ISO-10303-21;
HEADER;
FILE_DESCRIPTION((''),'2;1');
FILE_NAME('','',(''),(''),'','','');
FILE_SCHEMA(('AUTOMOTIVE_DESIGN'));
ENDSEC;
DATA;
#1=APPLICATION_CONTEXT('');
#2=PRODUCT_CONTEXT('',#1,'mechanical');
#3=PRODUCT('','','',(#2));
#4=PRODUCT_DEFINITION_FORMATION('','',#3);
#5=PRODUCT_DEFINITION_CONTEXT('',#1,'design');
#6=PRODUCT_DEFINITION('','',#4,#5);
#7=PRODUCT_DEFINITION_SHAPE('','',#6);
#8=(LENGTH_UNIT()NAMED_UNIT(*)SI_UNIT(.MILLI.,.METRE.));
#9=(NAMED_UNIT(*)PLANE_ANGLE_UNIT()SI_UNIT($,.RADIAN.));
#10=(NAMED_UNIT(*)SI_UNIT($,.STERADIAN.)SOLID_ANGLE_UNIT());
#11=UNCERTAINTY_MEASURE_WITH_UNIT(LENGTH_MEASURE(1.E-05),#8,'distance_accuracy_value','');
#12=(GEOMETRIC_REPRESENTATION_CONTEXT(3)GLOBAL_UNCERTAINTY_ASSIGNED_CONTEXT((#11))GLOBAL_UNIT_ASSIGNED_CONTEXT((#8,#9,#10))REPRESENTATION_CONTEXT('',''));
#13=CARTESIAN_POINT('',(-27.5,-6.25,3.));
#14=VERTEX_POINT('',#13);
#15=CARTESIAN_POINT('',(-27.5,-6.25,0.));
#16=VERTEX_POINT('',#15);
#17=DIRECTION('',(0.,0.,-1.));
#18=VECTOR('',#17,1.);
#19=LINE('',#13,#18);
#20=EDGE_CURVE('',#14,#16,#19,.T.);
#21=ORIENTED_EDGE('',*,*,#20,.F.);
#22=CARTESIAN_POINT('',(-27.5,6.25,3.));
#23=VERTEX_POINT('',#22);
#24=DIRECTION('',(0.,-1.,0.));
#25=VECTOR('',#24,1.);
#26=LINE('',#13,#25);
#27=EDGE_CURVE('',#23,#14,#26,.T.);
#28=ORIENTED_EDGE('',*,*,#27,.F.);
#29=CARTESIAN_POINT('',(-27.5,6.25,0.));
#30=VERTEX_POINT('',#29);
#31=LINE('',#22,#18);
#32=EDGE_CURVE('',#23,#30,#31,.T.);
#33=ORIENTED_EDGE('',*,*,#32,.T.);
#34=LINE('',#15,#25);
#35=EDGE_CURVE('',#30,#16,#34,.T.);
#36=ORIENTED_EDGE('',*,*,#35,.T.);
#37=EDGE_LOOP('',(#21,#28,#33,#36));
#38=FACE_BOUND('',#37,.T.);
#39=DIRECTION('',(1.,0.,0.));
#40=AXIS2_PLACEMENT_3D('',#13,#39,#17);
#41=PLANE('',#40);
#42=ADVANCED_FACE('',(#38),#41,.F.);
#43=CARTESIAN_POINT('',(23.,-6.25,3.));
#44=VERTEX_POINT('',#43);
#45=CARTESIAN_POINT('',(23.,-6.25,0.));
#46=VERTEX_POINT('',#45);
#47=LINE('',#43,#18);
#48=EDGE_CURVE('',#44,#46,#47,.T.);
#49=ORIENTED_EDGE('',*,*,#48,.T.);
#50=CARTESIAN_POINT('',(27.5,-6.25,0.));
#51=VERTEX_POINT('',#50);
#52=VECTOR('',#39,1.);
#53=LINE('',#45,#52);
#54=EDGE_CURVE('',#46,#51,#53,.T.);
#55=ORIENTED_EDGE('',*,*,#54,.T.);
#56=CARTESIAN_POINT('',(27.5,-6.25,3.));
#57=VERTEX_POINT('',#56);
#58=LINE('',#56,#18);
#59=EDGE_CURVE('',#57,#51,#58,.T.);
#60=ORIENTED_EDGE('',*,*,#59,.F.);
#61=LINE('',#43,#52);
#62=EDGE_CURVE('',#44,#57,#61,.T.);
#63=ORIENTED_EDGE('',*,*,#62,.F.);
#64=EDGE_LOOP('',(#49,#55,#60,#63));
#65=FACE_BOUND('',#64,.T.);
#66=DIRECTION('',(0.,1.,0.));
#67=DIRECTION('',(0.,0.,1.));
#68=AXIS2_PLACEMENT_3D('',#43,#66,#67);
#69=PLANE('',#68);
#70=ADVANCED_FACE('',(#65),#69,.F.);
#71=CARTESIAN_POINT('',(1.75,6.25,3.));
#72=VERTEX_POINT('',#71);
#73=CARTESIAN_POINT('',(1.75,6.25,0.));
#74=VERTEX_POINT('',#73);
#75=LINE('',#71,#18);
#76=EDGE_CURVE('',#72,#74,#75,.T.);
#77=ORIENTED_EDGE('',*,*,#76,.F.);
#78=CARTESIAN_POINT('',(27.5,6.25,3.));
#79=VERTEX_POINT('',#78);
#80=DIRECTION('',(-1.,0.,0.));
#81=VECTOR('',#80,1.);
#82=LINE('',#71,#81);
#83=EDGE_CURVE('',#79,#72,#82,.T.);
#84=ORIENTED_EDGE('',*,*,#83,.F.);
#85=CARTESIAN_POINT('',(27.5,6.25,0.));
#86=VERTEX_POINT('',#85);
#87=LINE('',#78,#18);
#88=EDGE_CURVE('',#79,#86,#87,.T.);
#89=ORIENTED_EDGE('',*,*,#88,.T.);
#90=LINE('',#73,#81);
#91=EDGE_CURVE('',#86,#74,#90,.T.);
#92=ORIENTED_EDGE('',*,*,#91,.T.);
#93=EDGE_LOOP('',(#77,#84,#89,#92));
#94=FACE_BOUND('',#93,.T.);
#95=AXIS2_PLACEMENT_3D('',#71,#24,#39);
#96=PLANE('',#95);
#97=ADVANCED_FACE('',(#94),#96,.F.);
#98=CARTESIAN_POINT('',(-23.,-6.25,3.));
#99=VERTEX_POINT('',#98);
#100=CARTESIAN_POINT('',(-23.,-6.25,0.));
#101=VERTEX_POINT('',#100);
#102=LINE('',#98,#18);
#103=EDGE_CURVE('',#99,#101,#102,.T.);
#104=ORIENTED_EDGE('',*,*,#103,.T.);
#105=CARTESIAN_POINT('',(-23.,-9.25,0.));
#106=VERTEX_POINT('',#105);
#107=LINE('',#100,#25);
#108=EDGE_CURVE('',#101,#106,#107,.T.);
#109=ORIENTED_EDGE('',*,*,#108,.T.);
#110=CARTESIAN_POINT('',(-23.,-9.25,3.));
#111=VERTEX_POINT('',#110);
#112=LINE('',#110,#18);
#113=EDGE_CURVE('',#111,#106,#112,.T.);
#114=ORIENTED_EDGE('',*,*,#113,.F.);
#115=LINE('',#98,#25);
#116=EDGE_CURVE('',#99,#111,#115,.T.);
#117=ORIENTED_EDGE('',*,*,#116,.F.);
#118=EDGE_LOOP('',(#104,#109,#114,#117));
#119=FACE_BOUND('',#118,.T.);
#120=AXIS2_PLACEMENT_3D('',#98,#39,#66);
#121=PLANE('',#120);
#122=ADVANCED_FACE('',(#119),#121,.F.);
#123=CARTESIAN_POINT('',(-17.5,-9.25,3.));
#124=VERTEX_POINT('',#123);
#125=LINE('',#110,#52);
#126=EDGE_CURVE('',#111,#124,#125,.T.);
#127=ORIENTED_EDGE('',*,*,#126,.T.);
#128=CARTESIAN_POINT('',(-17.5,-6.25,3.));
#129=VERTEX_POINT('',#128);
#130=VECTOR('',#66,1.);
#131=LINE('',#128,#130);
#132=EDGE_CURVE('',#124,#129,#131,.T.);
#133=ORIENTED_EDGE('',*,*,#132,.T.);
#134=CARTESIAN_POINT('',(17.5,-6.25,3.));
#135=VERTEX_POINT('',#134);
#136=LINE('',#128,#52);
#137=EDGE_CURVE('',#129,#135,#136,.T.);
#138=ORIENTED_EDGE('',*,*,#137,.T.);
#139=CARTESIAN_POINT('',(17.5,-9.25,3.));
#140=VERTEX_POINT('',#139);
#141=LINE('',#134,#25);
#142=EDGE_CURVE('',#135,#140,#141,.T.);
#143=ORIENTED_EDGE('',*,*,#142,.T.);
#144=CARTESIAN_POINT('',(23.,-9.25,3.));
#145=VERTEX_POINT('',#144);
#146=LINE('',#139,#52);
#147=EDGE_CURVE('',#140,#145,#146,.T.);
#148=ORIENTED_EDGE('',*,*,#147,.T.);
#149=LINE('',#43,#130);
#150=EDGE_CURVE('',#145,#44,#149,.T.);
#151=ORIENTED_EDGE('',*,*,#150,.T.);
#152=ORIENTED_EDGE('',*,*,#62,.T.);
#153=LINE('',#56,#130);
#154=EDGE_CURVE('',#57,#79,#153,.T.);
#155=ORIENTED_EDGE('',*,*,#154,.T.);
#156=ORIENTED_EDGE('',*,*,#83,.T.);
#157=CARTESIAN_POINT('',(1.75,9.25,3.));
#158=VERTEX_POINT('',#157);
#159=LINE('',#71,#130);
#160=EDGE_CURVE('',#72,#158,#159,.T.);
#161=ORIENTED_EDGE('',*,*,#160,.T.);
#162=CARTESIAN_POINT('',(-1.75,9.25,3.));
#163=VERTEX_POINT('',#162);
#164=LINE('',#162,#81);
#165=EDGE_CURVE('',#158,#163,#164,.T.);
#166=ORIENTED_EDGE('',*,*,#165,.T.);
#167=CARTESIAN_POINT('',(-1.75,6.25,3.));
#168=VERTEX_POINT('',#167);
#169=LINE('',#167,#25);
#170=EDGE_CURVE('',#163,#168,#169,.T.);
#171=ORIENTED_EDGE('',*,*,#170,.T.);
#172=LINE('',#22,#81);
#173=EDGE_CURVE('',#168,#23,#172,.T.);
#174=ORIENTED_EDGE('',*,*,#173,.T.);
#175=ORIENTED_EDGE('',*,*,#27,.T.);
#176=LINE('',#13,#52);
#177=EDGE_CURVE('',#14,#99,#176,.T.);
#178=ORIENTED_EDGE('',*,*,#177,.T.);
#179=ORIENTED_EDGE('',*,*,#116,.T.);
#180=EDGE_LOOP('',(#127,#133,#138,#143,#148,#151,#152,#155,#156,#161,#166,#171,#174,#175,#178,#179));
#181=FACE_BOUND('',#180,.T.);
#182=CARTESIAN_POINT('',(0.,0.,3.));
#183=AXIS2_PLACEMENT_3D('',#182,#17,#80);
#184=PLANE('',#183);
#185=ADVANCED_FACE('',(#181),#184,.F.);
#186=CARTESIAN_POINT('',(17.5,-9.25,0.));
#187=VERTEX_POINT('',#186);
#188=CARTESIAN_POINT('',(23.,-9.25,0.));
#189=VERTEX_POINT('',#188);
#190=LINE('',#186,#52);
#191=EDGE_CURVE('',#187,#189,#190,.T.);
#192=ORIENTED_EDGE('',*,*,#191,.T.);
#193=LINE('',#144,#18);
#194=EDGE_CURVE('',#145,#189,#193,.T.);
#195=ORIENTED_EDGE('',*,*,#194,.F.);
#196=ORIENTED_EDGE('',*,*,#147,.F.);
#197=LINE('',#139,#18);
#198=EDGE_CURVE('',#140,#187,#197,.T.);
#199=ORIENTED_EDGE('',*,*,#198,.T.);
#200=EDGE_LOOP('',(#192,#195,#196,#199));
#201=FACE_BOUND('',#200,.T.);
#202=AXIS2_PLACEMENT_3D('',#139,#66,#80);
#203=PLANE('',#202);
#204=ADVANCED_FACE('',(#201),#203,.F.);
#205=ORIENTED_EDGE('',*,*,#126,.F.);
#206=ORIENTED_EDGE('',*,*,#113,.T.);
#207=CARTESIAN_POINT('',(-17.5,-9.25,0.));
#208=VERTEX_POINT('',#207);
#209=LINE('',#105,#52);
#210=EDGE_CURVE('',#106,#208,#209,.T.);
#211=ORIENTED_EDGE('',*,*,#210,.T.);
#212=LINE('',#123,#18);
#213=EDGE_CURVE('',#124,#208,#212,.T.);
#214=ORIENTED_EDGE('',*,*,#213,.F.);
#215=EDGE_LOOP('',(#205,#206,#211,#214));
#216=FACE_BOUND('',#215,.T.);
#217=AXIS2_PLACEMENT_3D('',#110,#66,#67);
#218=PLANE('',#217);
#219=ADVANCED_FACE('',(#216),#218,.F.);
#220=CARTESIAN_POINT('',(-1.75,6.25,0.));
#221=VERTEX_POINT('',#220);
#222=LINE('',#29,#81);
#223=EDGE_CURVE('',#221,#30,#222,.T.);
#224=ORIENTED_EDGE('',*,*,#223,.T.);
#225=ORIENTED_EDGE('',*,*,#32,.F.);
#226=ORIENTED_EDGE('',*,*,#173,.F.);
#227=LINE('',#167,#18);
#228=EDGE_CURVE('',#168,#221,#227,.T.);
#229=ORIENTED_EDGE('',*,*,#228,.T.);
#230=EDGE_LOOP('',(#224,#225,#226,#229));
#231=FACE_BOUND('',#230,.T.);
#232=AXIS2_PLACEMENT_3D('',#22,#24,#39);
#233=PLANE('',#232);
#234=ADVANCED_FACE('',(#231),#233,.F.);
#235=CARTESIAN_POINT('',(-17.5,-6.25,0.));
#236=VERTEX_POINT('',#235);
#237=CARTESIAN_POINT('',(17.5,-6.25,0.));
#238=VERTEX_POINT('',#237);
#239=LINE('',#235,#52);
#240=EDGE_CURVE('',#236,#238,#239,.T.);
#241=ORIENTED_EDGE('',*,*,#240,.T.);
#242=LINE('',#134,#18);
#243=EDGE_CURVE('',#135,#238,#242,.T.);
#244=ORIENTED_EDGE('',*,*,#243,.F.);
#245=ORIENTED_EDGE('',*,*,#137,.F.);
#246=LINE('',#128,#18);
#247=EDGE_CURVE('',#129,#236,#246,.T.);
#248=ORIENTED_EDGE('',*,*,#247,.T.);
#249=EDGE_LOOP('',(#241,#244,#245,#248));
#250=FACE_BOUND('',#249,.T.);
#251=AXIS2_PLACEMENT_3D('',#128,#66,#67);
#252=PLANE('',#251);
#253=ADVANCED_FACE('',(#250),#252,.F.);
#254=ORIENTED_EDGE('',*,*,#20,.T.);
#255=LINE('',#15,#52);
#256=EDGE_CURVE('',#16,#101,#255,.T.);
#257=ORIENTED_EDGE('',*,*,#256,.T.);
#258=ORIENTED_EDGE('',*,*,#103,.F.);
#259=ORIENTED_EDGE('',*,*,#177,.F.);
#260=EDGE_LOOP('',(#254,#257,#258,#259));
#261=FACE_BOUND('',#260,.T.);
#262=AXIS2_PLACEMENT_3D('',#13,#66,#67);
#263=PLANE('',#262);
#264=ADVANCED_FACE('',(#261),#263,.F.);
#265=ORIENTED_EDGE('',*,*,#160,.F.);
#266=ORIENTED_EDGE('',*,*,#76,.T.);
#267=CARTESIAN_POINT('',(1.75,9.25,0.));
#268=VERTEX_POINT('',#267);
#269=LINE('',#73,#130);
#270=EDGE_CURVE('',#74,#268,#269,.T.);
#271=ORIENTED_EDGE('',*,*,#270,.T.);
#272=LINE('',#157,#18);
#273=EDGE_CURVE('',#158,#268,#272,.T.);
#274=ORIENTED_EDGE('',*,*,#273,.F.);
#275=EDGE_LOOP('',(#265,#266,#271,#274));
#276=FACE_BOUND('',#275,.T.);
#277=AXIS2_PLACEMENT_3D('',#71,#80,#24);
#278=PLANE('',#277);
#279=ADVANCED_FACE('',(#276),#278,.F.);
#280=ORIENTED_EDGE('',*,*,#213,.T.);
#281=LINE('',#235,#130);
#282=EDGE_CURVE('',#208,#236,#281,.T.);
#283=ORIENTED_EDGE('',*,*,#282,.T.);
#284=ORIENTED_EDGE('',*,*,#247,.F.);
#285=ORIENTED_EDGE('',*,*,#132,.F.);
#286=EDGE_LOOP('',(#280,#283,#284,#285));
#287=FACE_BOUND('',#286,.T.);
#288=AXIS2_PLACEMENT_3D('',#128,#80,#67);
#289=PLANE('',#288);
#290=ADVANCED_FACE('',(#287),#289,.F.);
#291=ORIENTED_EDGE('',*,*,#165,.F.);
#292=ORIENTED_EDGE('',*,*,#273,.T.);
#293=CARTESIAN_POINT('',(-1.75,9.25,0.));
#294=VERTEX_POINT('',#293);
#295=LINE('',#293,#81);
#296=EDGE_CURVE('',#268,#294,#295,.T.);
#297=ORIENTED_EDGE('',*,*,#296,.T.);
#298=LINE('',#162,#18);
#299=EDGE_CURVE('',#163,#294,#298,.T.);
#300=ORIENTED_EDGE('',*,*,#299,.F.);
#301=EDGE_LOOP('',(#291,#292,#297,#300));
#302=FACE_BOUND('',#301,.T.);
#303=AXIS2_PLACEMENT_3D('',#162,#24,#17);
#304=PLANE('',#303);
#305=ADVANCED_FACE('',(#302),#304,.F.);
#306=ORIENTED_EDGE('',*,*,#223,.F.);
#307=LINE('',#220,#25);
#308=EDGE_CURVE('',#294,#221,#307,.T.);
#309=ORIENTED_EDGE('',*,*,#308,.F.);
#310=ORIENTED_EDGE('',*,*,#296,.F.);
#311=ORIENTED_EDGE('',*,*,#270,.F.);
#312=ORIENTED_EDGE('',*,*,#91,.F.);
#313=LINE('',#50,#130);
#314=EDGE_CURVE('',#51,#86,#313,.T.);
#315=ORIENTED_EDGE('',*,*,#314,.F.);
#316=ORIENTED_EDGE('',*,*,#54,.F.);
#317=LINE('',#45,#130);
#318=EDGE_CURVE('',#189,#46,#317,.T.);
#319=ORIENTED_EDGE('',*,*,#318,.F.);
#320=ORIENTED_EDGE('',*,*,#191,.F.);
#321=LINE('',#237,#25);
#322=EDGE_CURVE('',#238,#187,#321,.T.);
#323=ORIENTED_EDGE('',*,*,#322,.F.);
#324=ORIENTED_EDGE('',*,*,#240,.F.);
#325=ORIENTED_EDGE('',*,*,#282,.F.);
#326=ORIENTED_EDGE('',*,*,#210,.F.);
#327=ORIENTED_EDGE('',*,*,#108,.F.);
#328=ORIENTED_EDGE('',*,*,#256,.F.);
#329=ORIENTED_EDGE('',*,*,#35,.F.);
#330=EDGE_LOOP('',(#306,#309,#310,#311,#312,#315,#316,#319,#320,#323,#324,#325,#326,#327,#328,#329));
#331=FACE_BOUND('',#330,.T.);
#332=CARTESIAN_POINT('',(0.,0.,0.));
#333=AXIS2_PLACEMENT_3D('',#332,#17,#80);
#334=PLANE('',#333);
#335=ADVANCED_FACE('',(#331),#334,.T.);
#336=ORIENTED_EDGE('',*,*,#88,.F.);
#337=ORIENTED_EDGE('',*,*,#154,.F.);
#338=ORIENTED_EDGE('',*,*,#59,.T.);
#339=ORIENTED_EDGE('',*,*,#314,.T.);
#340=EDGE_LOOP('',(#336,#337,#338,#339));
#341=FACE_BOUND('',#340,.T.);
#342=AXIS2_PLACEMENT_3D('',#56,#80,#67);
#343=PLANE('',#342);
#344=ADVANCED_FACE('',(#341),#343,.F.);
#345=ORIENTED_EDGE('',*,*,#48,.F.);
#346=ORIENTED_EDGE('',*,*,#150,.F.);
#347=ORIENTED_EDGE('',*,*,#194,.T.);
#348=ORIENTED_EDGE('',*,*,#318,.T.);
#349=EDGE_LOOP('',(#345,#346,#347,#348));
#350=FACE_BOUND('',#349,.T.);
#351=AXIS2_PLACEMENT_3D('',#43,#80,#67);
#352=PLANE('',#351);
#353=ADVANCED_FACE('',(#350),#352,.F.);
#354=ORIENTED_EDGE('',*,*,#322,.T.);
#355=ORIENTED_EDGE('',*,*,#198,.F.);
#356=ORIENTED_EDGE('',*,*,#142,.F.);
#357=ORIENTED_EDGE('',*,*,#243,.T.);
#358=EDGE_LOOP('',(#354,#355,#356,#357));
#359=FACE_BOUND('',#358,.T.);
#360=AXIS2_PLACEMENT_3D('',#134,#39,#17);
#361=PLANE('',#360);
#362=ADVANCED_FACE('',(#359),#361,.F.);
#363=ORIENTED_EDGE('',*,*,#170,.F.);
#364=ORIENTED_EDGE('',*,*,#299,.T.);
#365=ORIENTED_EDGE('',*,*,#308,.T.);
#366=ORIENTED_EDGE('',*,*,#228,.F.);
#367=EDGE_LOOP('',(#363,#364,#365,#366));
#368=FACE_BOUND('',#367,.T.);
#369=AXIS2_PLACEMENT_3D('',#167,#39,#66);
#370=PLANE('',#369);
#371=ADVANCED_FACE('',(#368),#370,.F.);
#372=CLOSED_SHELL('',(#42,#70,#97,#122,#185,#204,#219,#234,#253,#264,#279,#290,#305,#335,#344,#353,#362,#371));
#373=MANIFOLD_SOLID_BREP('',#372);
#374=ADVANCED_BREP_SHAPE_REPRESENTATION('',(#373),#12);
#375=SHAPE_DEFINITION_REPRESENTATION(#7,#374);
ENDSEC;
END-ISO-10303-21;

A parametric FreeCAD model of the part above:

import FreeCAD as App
import Part
import Sketcher
Q = App.Units.Quantity

doc = App.newDocument("Part")
body = doc.addObject("PartDesign::Body", "Body")

# Sketch on XY plane
sketch1 = body.newObject("Sketcher::SketchObject", "Sketch")
sketch1.AttachmentSupport = (doc.getObject("XY_Plane"), [""])
sketch1.MapMode = "FlatFace"
sketch1.addGeometry([
    Part.LineSegment(App.Vector(27.5, 6.2, 0), App.Vector(1.8, 6.2, 0)),  # 0
    Part.LineSegment(App.Vector(1.8, 6.2, 0), App.Vector(1.8, 9.2, 0)),  # 1
    Part.LineSegment(App.Vector(1.8, 9.2, 0), App.Vector(-1.8, 9.2, 0)),  # 2
    Part.LineSegment(App.Vector(-1.8, 9.2, 0), App.Vector(-1.8, 6.2, 0)),  # 3
    Part.LineSegment(App.Vector(-1.8, 6.2, 0), App.Vector(-27.5, 6.2, 0)),  # 4
    Part.LineSegment(App.Vector(-27.5, 6.2, 0), App.Vector(-27.5, -6.2, 0)),  # 5
    Part.LineSegment(App.Vector(-27.5, -6.2, 0), App.Vector(-23, -6.2, 0)),  # 6
    Part.LineSegment(App.Vector(-23, -6.2, 0), App.Vector(-23, -9.2, 0)),  # 7
    Part.LineSegment(App.Vector(-23, -9.2, 0), App.Vector(-17.5, -9.2, 0)),  # 8
    Part.LineSegment(App.Vector(-17.5, -9.2, 0), App.Vector(-17.5, -6.2, 0)),  # 9
    Part.LineSegment(App.Vector(-17.5, -6.2, 0), App.Vector(17.5, -6.2, 0)),  # 10
    Part.LineSegment(App.Vector(17.5, -6.2, 0), App.Vector(17.5, -9.2, 0)),  # 11
    Part.LineSegment(App.Vector(17.5, -9.2, 0), App.Vector(23, -9.2, 0)),  # 12
    Part.LineSegment(App.Vector(23, -9.2, 0), App.Vector(23, -6.2, 0)),  # 13
    Part.LineSegment(App.Vector(23, -6.2, 0), App.Vector(27.5, -6.2, 0)),  # 14
    Part.LineSegment(App.Vector(27.5, -6.2, 0), App.Vector(27.5, 6.2, 0)),  # 15
], False)
sketch1.addConstraint([
    Sketcher.Constraint("Coincident", 0, 2, 1, 1),
    Sketcher.Constraint("Coincident", 1, 2, 2, 1),
    Sketcher.Constraint("Coincident", 2, 2, 3, 1),
    Sketcher.Constraint("Coincident", 3, 2, 4, 1),
    Sketcher.Constraint("Coincident", 4, 2, 5, 1),
    Sketcher.Constraint("Coincident", 5, 2, 6, 1),
    Sketcher.Constraint("Coincident", 6, 2, 7, 1),
    Sketcher.Constraint("Coincident", 7, 2, 8, 1),
    Sketcher.Constraint("Coincident", 8, 2, 9, 1),
    Sketcher.Constraint("Coincident", 9, 2, 10, 1),
    Sketcher.Constraint("Coincident", 10, 2, 11, 1),
    Sketcher.Constraint("Coincident", 11, 2, 12, 1),
    Sketcher.Constraint("Coincident", 12, 2, 13, 1),
    Sketcher.Constraint("Coincident", 13, 2, 14, 1),
    Sketcher.Constraint("Coincident", 14, 2, 15, 1),
    Sketcher.Constraint("Coincident", 15, 2, 0, 1),
    Sketcher.Constraint("Horizontal", 0),
    Sketcher.Constraint("Vertical", 1),
    Sketcher.Constraint("Horizontal", 2),
    Sketcher.Constraint("Vertical", 3),
    Sketcher.Constraint("Horizontal", 4),
    Sketcher.Constraint("Vertical", 5),
    Sketcher.Constraint("Horizontal", 6),
    Sketcher.Constraint("Vertical", 7),
    Sketcher.Constraint("Horizontal", 8),
    Sketcher.Constraint("Vertical", 9),
    Sketcher.Constraint("Horizontal", 10),
    Sketcher.Constraint("Vertical", 11),
    Sketcher.Constraint("Horizontal", 12),
    Sketcher.Constraint("Vertical", 13),
    Sketcher.Constraint("Horizontal", 14),
    Sketcher.Constraint("Vertical", 15),
    Sketcher.Constraint("Symmetric", 4, 2, 14, 2, -1, 1),
    Sketcher.Constraint("Symmetric", 0, 2, 3, 2, -2),
    Sketcher.Constraint("Symmetric", 8, 2, 11, 2, -2),
    Sketcher.Constraint("Symmetric", 6, 2, 13, 2, -2),
    Sketcher.Constraint("Horizontal", 6, 2, 9, 2),
    Sketcher.Constraint("Equal", 3, 7),
    Sketcher.Constraint("DistanceX", 10, 1, 10, 2, Q("35 mm")),
    Sketcher.Constraint("DistanceY", 1, 1, 1, 2, Q("3 mm")),
    Sketcher.Constraint("DistanceX", 2, 2, 2, 1, Q("3.5 mm")),
    Sketcher.Constraint("DistanceX", 6, 1, 6, 2, Q("4.5 mm")),
    Sketcher.Constraint("DistanceX", 8, 1, 8, 2, Q("5.5 mm")),
    Sketcher.Constraint("DistanceY", 5, 2, 5, 1, Q("12.5 mm")),
])
pad1 = body.newObject("PartDesign::Pad", "Pad")
pad1.Profile = sketch1
pad1.Length = 3

doc.recompute()
